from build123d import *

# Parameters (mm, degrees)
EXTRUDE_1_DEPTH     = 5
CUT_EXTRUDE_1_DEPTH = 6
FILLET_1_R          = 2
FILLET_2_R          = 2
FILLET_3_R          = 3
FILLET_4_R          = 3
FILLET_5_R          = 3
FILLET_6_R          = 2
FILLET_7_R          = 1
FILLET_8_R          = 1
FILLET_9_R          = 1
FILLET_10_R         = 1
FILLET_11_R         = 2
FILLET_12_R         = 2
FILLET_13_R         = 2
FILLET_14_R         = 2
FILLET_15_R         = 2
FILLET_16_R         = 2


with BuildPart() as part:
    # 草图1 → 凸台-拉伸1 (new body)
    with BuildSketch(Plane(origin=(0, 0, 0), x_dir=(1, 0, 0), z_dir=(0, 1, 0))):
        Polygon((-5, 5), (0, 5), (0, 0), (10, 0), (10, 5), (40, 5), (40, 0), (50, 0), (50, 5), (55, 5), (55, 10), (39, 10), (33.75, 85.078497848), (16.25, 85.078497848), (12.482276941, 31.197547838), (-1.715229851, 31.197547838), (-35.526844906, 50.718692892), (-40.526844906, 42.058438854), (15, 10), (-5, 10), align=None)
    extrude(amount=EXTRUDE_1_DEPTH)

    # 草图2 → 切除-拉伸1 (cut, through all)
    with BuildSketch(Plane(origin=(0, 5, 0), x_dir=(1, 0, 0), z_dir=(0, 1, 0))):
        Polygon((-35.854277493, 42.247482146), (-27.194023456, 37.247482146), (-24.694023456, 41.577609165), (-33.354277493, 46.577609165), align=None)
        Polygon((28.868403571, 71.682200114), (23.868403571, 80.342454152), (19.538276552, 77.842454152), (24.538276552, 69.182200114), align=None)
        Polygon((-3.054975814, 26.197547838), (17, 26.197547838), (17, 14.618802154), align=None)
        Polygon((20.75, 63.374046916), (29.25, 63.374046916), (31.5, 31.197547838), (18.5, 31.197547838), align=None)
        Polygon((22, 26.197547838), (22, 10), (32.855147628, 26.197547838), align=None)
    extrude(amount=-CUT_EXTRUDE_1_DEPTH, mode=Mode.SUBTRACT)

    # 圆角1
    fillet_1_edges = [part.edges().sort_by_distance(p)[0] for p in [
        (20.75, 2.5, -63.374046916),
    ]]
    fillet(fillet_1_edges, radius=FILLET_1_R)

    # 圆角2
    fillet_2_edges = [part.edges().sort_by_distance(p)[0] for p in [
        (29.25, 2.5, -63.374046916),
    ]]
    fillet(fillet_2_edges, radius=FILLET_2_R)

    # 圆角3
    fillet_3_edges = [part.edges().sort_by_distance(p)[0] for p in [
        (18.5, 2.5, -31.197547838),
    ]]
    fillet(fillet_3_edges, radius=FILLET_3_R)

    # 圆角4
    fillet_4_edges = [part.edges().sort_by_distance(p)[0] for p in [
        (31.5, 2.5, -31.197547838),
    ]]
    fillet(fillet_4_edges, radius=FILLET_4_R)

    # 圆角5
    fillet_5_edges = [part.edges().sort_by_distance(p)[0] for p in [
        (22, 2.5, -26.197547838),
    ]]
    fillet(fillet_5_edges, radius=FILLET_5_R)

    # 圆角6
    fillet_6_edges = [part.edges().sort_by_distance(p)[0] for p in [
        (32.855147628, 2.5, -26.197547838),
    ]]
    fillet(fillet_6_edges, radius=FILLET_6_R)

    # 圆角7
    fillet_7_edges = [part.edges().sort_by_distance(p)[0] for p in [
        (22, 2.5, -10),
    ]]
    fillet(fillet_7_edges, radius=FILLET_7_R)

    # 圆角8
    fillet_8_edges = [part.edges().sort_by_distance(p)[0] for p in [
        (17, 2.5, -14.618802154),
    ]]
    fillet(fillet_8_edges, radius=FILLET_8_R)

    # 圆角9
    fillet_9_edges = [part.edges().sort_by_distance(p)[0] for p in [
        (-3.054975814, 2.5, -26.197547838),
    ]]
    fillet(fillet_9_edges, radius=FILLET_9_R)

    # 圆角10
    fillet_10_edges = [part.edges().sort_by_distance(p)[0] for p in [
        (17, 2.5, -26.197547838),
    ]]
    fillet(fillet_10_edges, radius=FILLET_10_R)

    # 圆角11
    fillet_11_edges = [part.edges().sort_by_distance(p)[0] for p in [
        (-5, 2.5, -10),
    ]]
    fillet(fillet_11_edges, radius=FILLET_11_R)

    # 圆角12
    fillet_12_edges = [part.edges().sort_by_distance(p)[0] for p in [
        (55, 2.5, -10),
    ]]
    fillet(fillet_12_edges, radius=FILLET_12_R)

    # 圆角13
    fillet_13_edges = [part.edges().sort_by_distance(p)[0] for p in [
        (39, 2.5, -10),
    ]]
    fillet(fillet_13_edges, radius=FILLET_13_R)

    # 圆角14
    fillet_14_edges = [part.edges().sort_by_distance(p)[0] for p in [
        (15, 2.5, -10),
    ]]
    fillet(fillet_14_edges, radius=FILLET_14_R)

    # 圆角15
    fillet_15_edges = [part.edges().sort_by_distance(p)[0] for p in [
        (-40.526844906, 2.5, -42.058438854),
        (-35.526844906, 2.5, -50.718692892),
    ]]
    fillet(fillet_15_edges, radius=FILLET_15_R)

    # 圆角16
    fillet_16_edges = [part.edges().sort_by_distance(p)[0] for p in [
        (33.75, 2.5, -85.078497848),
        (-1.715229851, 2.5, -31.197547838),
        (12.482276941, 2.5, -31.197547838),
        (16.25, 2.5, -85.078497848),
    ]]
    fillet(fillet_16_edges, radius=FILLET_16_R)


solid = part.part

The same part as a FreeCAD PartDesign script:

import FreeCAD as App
import Part
import Sketcher
Q = App.Units.Quantity


def edges_at(feature, points):
    """Names of the edges that pass closest to the given points."""
    edges = feature.Shape.Edges
    near = lambda p: min(range(len(edges)), key=lambda i: edges[i].distToShape(Part.Vertex(*p))[0])
    return sorted({f"Edge{near(p) + 1}" for p in points})

doc = App.newDocument("Part")
body = doc.addObject("PartDesign::Body", "Body")

sketch1 = body.newObject("Sketcher::SketchObject", "Sketch")
sketch1.AttachmentSupport = (doc.getObject("XZ_Plane"), [""])
sketch1.MapMode = "FlatFace"
sketch1.addGeometry(Part.LineSegment(App.Vector(-5, -5, 0), App.Vector(0, -5, 0)), False)
sketch1.addGeometry(Part.LineSegment(App.Vector(0, -5, 0), App.Vector(0, 0, 0)), False)
sketch1.addGeometry(Part.LineSegment(App.Vector(0, 0, 0), App.Vector(10, 0, 0)), False)
sketch1.addGeometry(Part.LineSegment(App.Vector(10, 0, 0), App.Vector(10, -5, 0)), False)
sketch1.addGeometry(Part.LineSegment(App.Vector(10, -5, 0), App.Vector(40, -5, 0)), False)
sketch1.addGeometry(Part.LineSegment(App.Vector(40, -5, 0), App.Vector(40, 0, 0)), False)
sketch1.addGeometry(Part.LineSegment(App.Vector(40, 0, 0), App.Vector(50, 0, 0)), False)
sketch1.addGeometry(Part.LineSegment(App.Vector(50, 0, 0), App.Vector(50, -5, 0)), False)
sketch1.addGeometry(Part.LineSegment(App.Vector(50, -5, 0), App.Vector(55, -5, 0)), False)
sketch1.addGeometry(Part.LineSegment(App.Vector(55, -5, 0), App.Vector(55, -10, 0)), False)
sketch1.addGeometry(Part.LineSegment(App.Vector(55, -10, 0), App.Vector(39, -10, 0)), False)
sketch1.addGeometry(Part.LineSegment(App.Vector(39, -10, 0), App.Vector(34, -85, 0)), False)
sketch1.addGeometry(Part.LineSegment(App.Vector(34, -85, 0), App.Vector(16, -85, 0)), False)
sketch1.addGeometry(Part.LineSegment(App.Vector(16, -85, 0), App.Vector(12, -31, 0)), False)
sketch1.addGeometry(Part.LineSegment(App.Vector(12, -31, 0), App.Vector(-2, -31, 0)), False)
sketch1.addGeometry(Part.LineSegment(App.Vector(-2, -31, 0), App.Vector(-36, -51, 0)), False)
sketch1.addGeometry(Part.LineSegment(App.Vector(-36, -51, 0), App.Vector(-41, -42, 0)), False)
sketch1.addGeometry(Part.LineSegment(App.Vector(-41, -42, 0), App.Vector(15, -10, 0)), False)
sketch1.addGeometry(Part.LineSegment(App.Vector(15, -10, 0), App.Vector(-5, -10, 0)), False)
sketch1.addGeometry(Part.LineSegment(App.Vector(-5, -10, 0), App.Vector(-5, -5, 0)), False)
sketch1.addConstraint(Sketcher.Constraint("Coincident", 0, 2, 1, 1))
sketch1.addConstraint(Sketcher.Constraint("Coincident", 1, 2, 2, 1))
sketch1.addConstraint(Sketcher.Constraint("Coincident", 2, 2, 3, 1))
sketch1.addConstraint(Sketcher.Constraint("Coincident", 3, 2, 4, 1))
sketch1.addConstraint(Sketcher.Constraint("Coincident", 4, 2, 5, 1))
sketch1.addConstraint(Sketcher.Constraint("Coincident", 5, 2, 6, 1))
sketch1.addConstraint(Sketcher.Constraint("Coincident", 6, 2, 7, 1))
sketch1.addConstraint(Sketcher.Constraint("Coincident", 7, 2, 8, 1))
sketch1.addConstraint(Sketcher.Constraint("Coincident", 8, 2, 9, 1))
sketch1.addConstraint(Sketcher.Constraint("Coincident", 9, 2, 10, 1))
sketch1.addConstraint(Sketcher.Constraint("Coincident", 10, 2, 11, 1))
sketch1.addConstraint(Sketcher.Constraint("Coincident", 11, 2, 12, 1))
sketch1.addConstraint(Sketcher.Constraint("Coincident", 12, 2, 13, 1))
sketch1.addConstraint(Sketcher.Constraint("Coincident", 13, 2, 14, 1))
sketch1.addConstraint(Sketcher.Constraint("Coincident", 14, 2, 15, 1))
sketch1.addConstraint(Sketcher.Constraint("Coincident", 15, 2, 16, 1))
sketch1.addConstraint(Sketcher.Constraint("Coincident", 16, 2, 17, 1))
sketch1.addConstraint(Sketcher.Constraint("Coincident", 17, 2, 18, 1))
sketch1.addConstraint(Sketcher.Constraint("Coincident", 18, 2, 19, 1))
sketch1.addConstraint(Sketcher.Constraint("Coincident", 19, 2, 0, 1))
sketch1.addConstraint(Sketcher.Constraint("Horizontal", 0))
sketch1.addConstraint(Sketcher.Constraint("Vertical", 1))
sketch1.addConstraint(Sketcher.Constraint("Horizontal", 2))
sketch1.addConstraint(Sketcher.Constraint("Vertical", 3))
sketch1.addConstraint(Sketcher.Constraint("Horizontal", 4))
sketch1.addConstraint(Sketcher.Constraint("Vertical", 5))
sketch1.addConstraint(Sketcher.Constraint("Horizontal", 6))
sketch1.addConstraint(Sketcher.Constraint("Vertical", 7))
sketch1.addConstraint(Sketcher.Constraint("Horizontal", 8))
sketch1.addConstraint(Sketcher.Constraint("Vertical", 9))
sketch1.addConstraint(Sketcher.Constraint("Horizontal", 10))
sketch1.addConstraint(Sketcher.Constraint("Horizontal", 12))
sketch1.addConstraint(Sketcher.Constraint("Horizontal", 14))
sketch1.addConstraint(Sketcher.Constraint("Horizontal", 18))
sketch1.addConstraint(Sketcher.Constraint("Vertical", 19))
sketch1.addConstraint(Sketcher.Constraint("Coincident", 1, 2, -1, 1))
sketch1.addConstraint(Sketcher.Constraint("PointOnObject", 5, 2, -1))
sketch1.addConstraint(Sketcher.Constraint("Perpendicular", 15, 16))
sketch1.addConstraint(Sketcher.Constraint("Perpendicular", 16, 17))
sketch1.addConstraint(Sketcher.Constraint("Horizontal", 0, 2, 3, 2))
sketch1.addConstraint(Sketcher.Constraint("Horizontal", 4, 2, 7, 2))
sketch1.addConstraint(Sketcher.Constraint("Horizontal", 10, 2, 17, 2))
sketch1.addConstraint(Sketcher.Constraint("Equal", 2, 6))
sketch1.addConstraint(Sketcher.Constraint("Equal", 0, 8))
sketch1.addConstraint(Sketcher.Constraint("Equal", 8, 1))
sketch1.addConstraint(Sketcher.Constraint("Equal", 7, 9))
sketch1.addConstraint(Sketcher.Constraint("DistanceX", 0, 1, 0, 2, Q("5 mm")))
sketch1.addConstraint(Sketcher.Constraint("DistanceX", 2, 1, 2, 2, Q("10 mm")))
sketch1.addConstraint(Sketcher.Constraint("DistanceX", 4, 1, 4, 2, Q("30 mm")))
sketch1.addConstraint(Sketcher.Constraint("DistanceX", 10, 2, 10, 1, Q("16 mm")))
sketch1.addConstraint(Sketcher.Constraint("DistanceX", 18, 2, 18, 1, Q("20 mm")))
sketch1.addConstraint(Sketcher.Constraint("Angle", 11, Q("-94 deg")))
sketch1.addConstraint(Sketcher.Constraint("Angle", 13, Q("94 deg")))
sketch1.addConstraint(Sketcher.Constraint("Angle", 15, Q("-150 deg")))
sketch1.addConstraint(Sketcher.Constraint("Distance", 16, Q("10 mm")))
sketch1.addConstraint(Sketcher.Constraint("DistanceX", 12, 2, 12, 1, Q("17.5 mm")))
sketch1.addConstraint(Sketcher.Constraint("DistanceX", -1, 1, 11, 2, Q("33.75 mm")))
sketch1.addConstraint(Sketcher.Constraint("Distance", 13, Q("54.012522 mm")))
sketch1.addConstraint(Sketcher.Constraint("Distance", 15, Q("39.04229 mm")))
pad1 = body.newObject("PartDesign::Pad", "Pad")
pad1.Profile = sketch1
pad1.Length = 5
pad1.Reversed = True

sketch2 = body.newObject("Sketcher::SketchObject", "Sketch001")
sketch2.AttachmentSupport = (doc.getObject("XZ_Plane"), [""])
sketch2.MapMode = "FlatFace"
sketch2.AttachmentOffset = App.Placement(App.Vector(0, 0, -5), App.Rotation())
sketch2.addGeometry(Part.LineSegment(App.Vector(-36, -42, 0), App.Vector(-27, -37, 0)), False)
sketch2.addGeometry(Part.LineSegment(App.Vector(-27, -37, 0), App.Vector(-25, -42, 0)), False)
sketch2.addGeometry(Part.LineSegment(App.Vector(-25, -42, 0), App.Vector(-33, -47, 0)), False)
sketch2.addGeometry(Part.LineSegment(App.Vector(-33, -47, 0), App.Vector(-36, -42, 0)), False)
sketch2.addGeometry(Part.LineSegment(App.Vector(29, -72, 0), App.Vector(24, -80, 0)), False)
sketch2.addGeometry(Part.LineSegment(App.Vector(24, -80, 0), App.Vector(20, -78, 0)), False)
sketch2.addGeometry(Part.LineSegment(App.Vector(20, -78, 0), App.Vector(25, -69, 0)), False)
sketch2.addGeometry(Part.LineSegment(App.Vector(25, -69, 0), App.Vector(29, -72, 0)), False)
sketch2.addGeometry(Part.LineSegment(App.Vector(17, -26, 0), App.Vector(-3, -26, 0)), False)
sketch2.addGeometry(Part.LineSegment(App.Vector(-3, -26, 0), App.Vector(17, -15, 0)), False)
sketch2.addGeometry(Part.LineSegment(App.Vector(17, -15, 0), App.Vector(17, -26, 0)), False)
sketch2.addGeometry(Part.LineSegment(App.Vector(29, -63, 0), App.Vector(21, -63, 0)), False)
sketch2.addGeometry(Part.LineSegment(App.Vector(21, -63, 0), App.Vector(18, -31, 0)), False)
sketch2.addGeometry(Part.LineSegment(App.Vector(18, -31, 0), App.Vector(32, -31, 0)), False)
sketch2.addGeometry(Part.LineSegment(App.Vector(32, -31, 0), App.Vector(29, -63, 0)), False)
sketch2.addGeometry(Part.LineSegment(App.Vector(22, -26, 0), App.Vector(22, -10, 0)), False)
sketch2.addGeometry(Part.LineSegment(App.Vector(22, -10, 0), App.Vector(33, -26, 0)), False)
sketch2.addGeometry(Part.LineSegment(App.Vector(33, -26, 0), App.Vector(22, -26, 0)), False)
sketch2.addConstraint(Sketcher.Constraint("Coincident", 0, 2, 1, 1))
sketch2.addConstraint(Sketcher.Constraint("Coincident", 1, 2, 2, 1))
sketch2.addConstraint(Sketcher.Constraint("Coincident", 2, 2, 3, 1))
sketch2.addConstraint(Sketcher.Constraint("Coincident", 3, 2, 0, 1))
sketch2.addConstraint(Sketcher.Constraint("Coincident", 4, 2, 5, 1))
sketch2.addConstraint(Sketcher.Constraint("Coincident", 5, 2, 6, 1))
sketch2.addConstraint(Sketcher.Constraint("Coincident", 6, 2, 7, 1))
sketch2.addConstraint(Sketcher.Constraint("Coincident", 7, 2, 4, 1))
sketch2.addConstraint(Sketcher.Constraint("Coincident", 8, 2, 9, 1))
sketch2.addConstraint(Sketcher.Constraint("Coincident", 9, 2, 10, 1))
sketch2.addConstraint(Sketcher.Constraint("Coincident", 10, 2, 8, 1))
sketch2.addConstraint(Sketcher.Constraint("Coincident", 11, 2, 12, 1))
sketch2.addConstraint(Sketcher.Constraint("Coincident", 12, 2, 13, 1))
sketch2.addConstraint(Sketcher.Constraint("Coincident", 13, 2, 14, 1))
sketch2.addConstraint(Sketcher.Constraint("Coincident", 14, 2, 11, 1))
sketch2.addConstraint(Sketcher.Constraint("Coincident", 15, 2, 16, 1))
sketch2.addConstraint(Sketcher.Constraint("Coincident", 16, 2, 17, 1))
sketch2.addConstraint(Sketcher.Constraint("Coincident", 17, 2, 15, 1))
sketch2.addConstraint(Sketcher.Constraint("Horizontal", 8))
sketch2.addConstraint(Sketcher.Constraint("Vertical", 10))
sketch2.addConstraint(Sketcher.Constraint("Horizontal", 11))
sketch2.addConstraint(Sketcher.Constraint("Horizontal", 13))
sketch2.addConstraint(Sketcher.Constraint("Vertical", 15))
sketch2.addConstraint(Sketcher.Constraint("Horizontal", 17))
sketch2.addConstraint(Sketcher.Constraint("Perpendicular", 0, 1))
sketch2.addConstraint(Sketcher.Constraint("Perpendicular", 1, 2))
sketch2.addConstraint(Sketcher.Constraint("Perpendicular", 2, 3))
sketch2.addConstraint(Sketcher.Constraint("Perpendicular", 4, 5))
sketch2.addConstraint(Sketcher.Constraint("Perpendicular", 5, 6))
sketch2.addConstraint(Sketcher.Constraint("Perpendicular", 6, 7))
sketch2.addConstraint(Sketcher.Constraint("Perpendicular", 3, 9))
sketch2.addConstraint(Sketcher.Constraint("Horizontal", 10, 2, 16, 2))
sketch2.addConstraint(Sketcher.Constraint("Equal", 2, 4))
sketch2.addConstraint(Sketcher.Constraint("Equal", 3, 5))
sketch2.addConstraint(Sketcher.Constraint("Equal", 12, 14))
sketch2.addConstraint(Sketcher.Constraint("DistanceX", 13, 1, 13, 2, Q("13 mm")))
sketch2.addConstraint(Sketcher.Constraint("Angle", 0, Q("30 deg")))
sketch2.addConstraint(Sketcher.Constraint("Angle", 4, Q("-120 deg")))
sketch2.addConstraint(Sketcher.Constraint("Angle", 12, Q("94 deg")))
sketch2.addConstraint(Sketcher.Constraint("Distance", 0, Q("10 mm")))
sketch2.addConstraint(Sketcher.Constraint("Distance", 1, Q("5 mm")))
sketch2.addConstraint(Sketcher.Constraint("DistanceX", 11, 2, 11, 1, Q("8.5 mm")))
sketch2.addConstraint(Sketcher.Constraint("DistanceX", -1, 1, 9, 2, Q("17 mm")))
sketch2.addConstraint(Sketcher.Constraint("DistanceX", -1, 1, 15, 2, Q("22 mm")))
sketch2.addConstraint(Sketcher.Constraint("DistanceY", 15, 2, -1, 1, Q("10 mm")))
sketch2.addConstraint(Sketcher.Constraint("DistanceY", 12, 2, 10, 2, Q("5 mm")))
sketch2.addConstraint(Sketcher.Constraint("DistanceX", -1, 1, 12, 2, Q("18.5 mm")))
sketch2.addConstraint(Sketcher.Constraint("DistanceY", 6, 2, -1, 1, Q("69.1822 mm")))
sketch2.addConstraint(Sketcher.Constraint("DistanceX", 1, 2, 5, 2, Q("44.2323 mm")))
sketch2.addConstraint(Sketcher.Constraint("DistanceX", 3, 2, 8, 2, Q("32.799302 mm")))
sketch2.addConstraint(Sketcher.Constraint("Distance", 9, Q("23.157491 mm")))
sketch2.addConstraint(Sketcher.Constraint("DistanceX", 17, 2, 17, 1, Q("10.855148 mm")))
sketch2.addConstraint(Sketcher.Constraint("DistanceY", 15, 1, 15, 2, Q("16.197548 mm")))
sketch2.addConstraint(Sketcher.Constraint("DistanceY", 1, 2, -1, 1, Q("41.577609 mm")))
pocket1 = body.newObject("PartDesign::Pocket", "Pocket")
pocket1.Profile = sketch2
pocket1.Type = "ThroughAll"
pocket1.Reversed = True
doc.recompute()

fillet = body.newObject("PartDesign::Fillet", "Fillet")
fillet.Base = (pocket1, edges_at(pocket1, [(20.75, 2.5, -63.374)]))
fillet.Radius = 2
doc.recompute()

fillet2 = body.newObject("PartDesign::Fillet", "Fillet001")
fillet2.Base = (fillet, edges_at(fillet, [(29.25, 2.5, -63.374)]))
fillet2.Radius = 2
doc.recompute()

fillet3 = body.newObject("PartDesign::Fillet", "Fillet002")
fillet3.Base = (fillet2, edges_at(fillet2, [(18.5, 2.5, -31.198)]))
fillet3.Radius = 3
doc.recompute()

fillet4 = body.newObject("PartDesign::Fillet", "Fillet003")
fillet4.Base = (fillet3, edges_at(fillet3, [(31.5, 2.5, -31.198)]))
fillet4.Radius = 3
doc.recompute()

fillet5 = body.newObject("PartDesign::Fillet", "Fillet004")
fillet5.Base = (fillet4, edges_at(fillet4, [(22, 2.5, -26.198)]))
fillet5.Radius = 3
doc.recompute()

fillet6 = body.newObject("PartDesign::Fillet", "Fillet005")
fillet6.Base = (fillet5, edges_at(fillet5, [(32.855, 2.5, -26.198)]))
fillet6.Radius = 2
doc.recompute()

fillet7 = body.newObject("PartDesign::Fillet", "Fillet006")
fillet7.Base = (fillet6, edges_at(fillet6, [(22, 2.5, -10)]))
fillet7.Radius = 1
doc.recompute()

fillet8 = body.newObject("PartDesign::Fillet", "Fillet007")
fillet8.Base = (fillet7, edges_at(fillet7, [(17, 2.5, -14.619)]))
fillet8.Radius = 1
doc.recompute()

fillet9 = body.newObject("PartDesign::Fillet", "Fillet008")
fillet9.Base = (fillet8, edges_at(fillet8, [(-3.055, 2.5, -26.198)]))
fillet9.Radius = 1
doc.recompute()

fillet10 = body.newObject("PartDesign::Fillet", "Fillet009")
fillet10.Base = (fillet9, edges_at(fillet9, [(17, 2.5, -26.198)]))
fillet10.Radius = 1
doc.recompute()

fillet11 = body.newObject("PartDesign::Fillet", "Fillet010")
fillet11.Base = (fillet10, edges_at(fillet10, [(-5, 2.5, -10)]))
fillet11.Radius = 2
doc.recompute()

fillet12 = body.newObject("PartDesign::Fillet", "Fillet011")
fillet12.Base = (fillet11, edges_at(fillet11, [(55, 2.5, -10)]))
fillet12.Radius = 2
doc.recompute()

fillet13 = body.newObject("PartDesign::Fillet", "Fillet012")
fillet13.Base = (fillet12, edges_at(fillet12, [(39, 2.5, -10)]))
fillet13.Radius = 2
doc.recompute()

fillet14 = body.newObject("PartDesign::Fillet", "Fillet013")
fillet14.Base = (fillet13, edges_at(fillet13, [(15, 2.5, -10)]))
fillet14.Radius = 2
doc.recompute()

fillet15 = body.newObject("PartDesign::Fillet", "Fillet014")
fillet15.Base = (fillet14, edges_at(fillet14, [(-40.527, 2.5, -42.058), (-35.527, 2.5, -50.719)]))
fillet15.Radius = 2
doc.recompute()

fillet16 = body.newObject("PartDesign::Fillet", "Fillet015")
fillet16.Base = (fillet15, edges_at(fillet15, [
    (33.75, 2.5, -85.078),
    (-1.715, 2.5, -31.198),
    (12.482, 2.5, -31.198),
    (16.25, 2.5, -85.078),
]))
fillet16.Radius = 2

doc.recompute()
